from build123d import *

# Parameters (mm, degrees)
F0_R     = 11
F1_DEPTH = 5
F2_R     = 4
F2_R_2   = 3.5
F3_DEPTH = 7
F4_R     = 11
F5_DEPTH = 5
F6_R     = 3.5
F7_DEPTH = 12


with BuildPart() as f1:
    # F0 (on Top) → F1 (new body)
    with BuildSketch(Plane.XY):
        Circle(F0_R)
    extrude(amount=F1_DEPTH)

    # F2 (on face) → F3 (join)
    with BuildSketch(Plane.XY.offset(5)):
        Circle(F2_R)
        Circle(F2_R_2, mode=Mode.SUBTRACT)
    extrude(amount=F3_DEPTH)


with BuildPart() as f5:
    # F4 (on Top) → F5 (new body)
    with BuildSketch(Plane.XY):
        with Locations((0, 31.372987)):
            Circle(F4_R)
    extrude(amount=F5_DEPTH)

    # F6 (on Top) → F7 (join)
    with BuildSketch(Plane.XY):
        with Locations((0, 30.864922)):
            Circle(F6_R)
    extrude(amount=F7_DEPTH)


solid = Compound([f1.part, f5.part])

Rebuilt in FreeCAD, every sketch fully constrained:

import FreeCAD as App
import Part
import Sketcher

V = App.Vector
Q = App.Units.Quantity

doc = App.newDocument("Part")
params = doc.addObject("Spreadsheet::Sheet", "Params")
for row, (alias, value) in enumerate([
    ("sketch1_diameter", "22 mm"),
    ("pad1_length", "5 mm"),
    ("sketch2_diameter", "8 mm"),
    ("sketch2_diameter2", "7 mm"),
    ("pad2_length", "7 mm"),
    ("sketch3_diameter", "22 mm"),
    ("pad3_length", "5 mm"),
    ("sketch4_diameter", "7 mm"),
    ("pad4_length", "12 mm"),
], start=1):
    params.set(f"A{row}", alias)
    params.set(f"B{row}", "=" + value)
    params.setAlias(f"B{row}", alias)

body = doc.addObject("PartDesign::Body", "Body")

# Sketch on XY plane
sketch1 = doc.addObject("Sketcher::SketchObject", "Sketch")
body.addObject(sketch1)
sketch1.AttachmentSupport = (doc.XY_Plane, [""])
sketch1.MapMode = "FlatFace"
sketch1.addGeometry(Part.Circle(V(0, 0, 0), V(0, 0, 1), 11), False)
sketch1.addConstraint(Sketcher.Constraint("Coincident", 0, 3, -1, 1))
sketch1.addConstraint(Sketcher.Constraint("Diameter", 0, Q("22 mm")))
sketch1.setExpression("Constraints[1]", "Params.sketch1_diameter")
pad1 = doc.addObject("PartDesign::Pad", "Pad")
body.addObject(pad1)
pad1.Profile = sketch1
pad1.setExpression("Length", "Params.pad1_length")

# Sketch on XY plane
sketch2 = doc.addObject("Sketcher::SketchObject", "Sketch001")
body.addObject(sketch2)
sketch2.AttachmentSupport = (doc.XY_Plane, [""])
sketch2.MapMode = "FlatFace"
sketch2.AttachmentOffset = App.Placement(V(0, 0, 5), App.Rotation())
sketch2.addGeometry(Part.Circle(V(0, 0, 0), V(0, 0, 1), 4), False)
sketch2.addGeometry(Part.Circle(V(0, 0, 0), V(0, 0, 1), 3.5), False)
sketch2.addConstraint(Sketcher.Constraint("Coincident", 0, 3, -1, 1))
sketch2.addConstraint(Sketcher.Constraint("Coincident", 1, 3, -1, 1))
sketch2.addConstraint(Sketcher.Constraint("Diameter", 0, Q("8 mm")))
sketch2.addConstraint(Sketcher.Constraint("Diameter", 1, Q("7 mm")))
sketch2.setExpression("Constraints[2]", "Params.sketch2_diameter")
sketch2.setExpression("Constraints[3]", "Params.sketch2_diameter2")
pad2 = doc.addObject("PartDesign::Pad", "Pad001")
body.addObject(pad2)
pad2.Profile = sketch2
pad2.setExpression("Length", "Params.pad2_length")
body2 = doc.addObject("PartDesign::Body", "Body001")

# Sketch on XY plane
sketch3 = doc.addObject("Sketcher::SketchObject", "Sketch002")
body2.addObject(sketch3)
sketch3.AttachmentSupport = (doc.getObject("XY_Plane001"), [""])
sketch3.MapMode = "FlatFace"
sketch3.addGeometry(Part.Circle(V(0, 31, 0), V(0, 0, 1), 11), False)
sketch3.addConstraint(Sketcher.Constraint("PointOnObject", 0, 3, -2))
sketch3.addConstraint(Sketcher.Constraint("Diameter", 0, Q("22 mm")))
sketch3.addConstraint(Sketcher.Constraint("DistanceY", -1, 1, 0, 3, Q("31.372987 mm")))
sketch3.setExpression("Constraints[1]", "Params.sketch3_diameter")
pad3 = doc.addObject("PartDesign::Pad", "Pad002")
body2.addObject(pad3)
pad3.Profile = sketch3
pad3.setExpression("Length", "Params.pad3_length")

# Sketch on XY plane
sketch4 = doc.addObject("Sketcher::SketchObject", "Sketch003")
body2.addObject(sketch4)
sketch4.AttachmentSupport = (doc.getObject("XY_Plane001"), [""])
sketch4.MapMode = "FlatFace"
sketch4.addGeometry(Part.Circle(V(0, 30.9, 0), V(0, 0, 1), 3.5), False)
sketch4.addConstraint(Sketcher.Constraint("PointOnObject", 0, 3, -2))
sketch4.addConstraint(Sketcher.Constraint("Diameter", 0, Q("7 mm")))
sketch4.addConstraint(Sketcher.Constraint("DistanceY", -1, 1, 0, 3, Q("30.864922 mm")))
sketch4.setExpression("Constraints[1]", "Params.sketch4_diameter")
pad4 = doc.addObject("PartDesign::Pad", "Pad003")
body2.addObject(pad4)
pad4.Profile = sketch4
pad4.setExpression("Length", "Params.pad4_length")

doc.recompute()
